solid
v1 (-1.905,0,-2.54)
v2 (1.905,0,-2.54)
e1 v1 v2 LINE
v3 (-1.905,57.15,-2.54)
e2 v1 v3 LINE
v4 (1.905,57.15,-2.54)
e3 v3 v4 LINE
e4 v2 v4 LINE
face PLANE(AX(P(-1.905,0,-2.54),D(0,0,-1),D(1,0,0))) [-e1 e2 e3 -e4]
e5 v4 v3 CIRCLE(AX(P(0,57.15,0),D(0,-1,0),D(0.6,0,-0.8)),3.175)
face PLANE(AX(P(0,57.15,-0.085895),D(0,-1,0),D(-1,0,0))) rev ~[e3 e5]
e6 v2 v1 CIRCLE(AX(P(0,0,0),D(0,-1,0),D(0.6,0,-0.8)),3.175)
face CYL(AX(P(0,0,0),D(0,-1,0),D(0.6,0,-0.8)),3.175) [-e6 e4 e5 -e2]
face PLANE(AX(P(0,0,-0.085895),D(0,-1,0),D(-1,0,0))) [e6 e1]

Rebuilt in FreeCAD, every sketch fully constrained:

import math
import FreeCAD as App
import Part
import Sketcher
Q = App.Units.Quantity

doc = App.newDocument("Part")
body = doc.addObject("PartDesign::Body", "Body")

sketch1 = body.newObject("Sketcher::SketchObject", "Sketch")
sketch1.AttachmentSupport = (doc.getObject("XZ_Plane"), [""])
sketch1.MapMode = "FlatFace"
sketch1.addGeometry(Part.LineSegment(App.Vector(1.9, -2.5, 0), App.Vector(-1.9, -2.5, 0)), False)
sketch1.addGeometry(Part.ArcOfCircle(Part.Circle(App.Vector(0, 0, 0), App.Vector(0, 0, 1), 3.2), math.radians(-53), math.radians(233)), False)
sketch1.addConstraint(Sketcher.Constraint("Coincident", 0, 1, 1, 1))
sketch1.addConstraint(Sketcher.Constraint("Coincident", 1, 2, 0, 2))
sketch1.addConstraint(Sketcher.Constraint("Horizontal", 0))
sketch1.addConstraint(Sketcher.Constraint("Coincident", 1, 3, -1, 1))
sketch1.addConstraint(Sketcher.Constraint("Radius", 1, Q("0.125 in")))
sketch1.addConstraint(Sketcher.Constraint("DistanceX", 0, 2, 0, 1, Q("0.15 in")))
pad1 = body.newObject("PartDesign::Pad", "Pad")
pad1.Profile = sketch1
pad1.Length = Q("2.25 in")
pad1.Reversed = True

doc.recompute()
